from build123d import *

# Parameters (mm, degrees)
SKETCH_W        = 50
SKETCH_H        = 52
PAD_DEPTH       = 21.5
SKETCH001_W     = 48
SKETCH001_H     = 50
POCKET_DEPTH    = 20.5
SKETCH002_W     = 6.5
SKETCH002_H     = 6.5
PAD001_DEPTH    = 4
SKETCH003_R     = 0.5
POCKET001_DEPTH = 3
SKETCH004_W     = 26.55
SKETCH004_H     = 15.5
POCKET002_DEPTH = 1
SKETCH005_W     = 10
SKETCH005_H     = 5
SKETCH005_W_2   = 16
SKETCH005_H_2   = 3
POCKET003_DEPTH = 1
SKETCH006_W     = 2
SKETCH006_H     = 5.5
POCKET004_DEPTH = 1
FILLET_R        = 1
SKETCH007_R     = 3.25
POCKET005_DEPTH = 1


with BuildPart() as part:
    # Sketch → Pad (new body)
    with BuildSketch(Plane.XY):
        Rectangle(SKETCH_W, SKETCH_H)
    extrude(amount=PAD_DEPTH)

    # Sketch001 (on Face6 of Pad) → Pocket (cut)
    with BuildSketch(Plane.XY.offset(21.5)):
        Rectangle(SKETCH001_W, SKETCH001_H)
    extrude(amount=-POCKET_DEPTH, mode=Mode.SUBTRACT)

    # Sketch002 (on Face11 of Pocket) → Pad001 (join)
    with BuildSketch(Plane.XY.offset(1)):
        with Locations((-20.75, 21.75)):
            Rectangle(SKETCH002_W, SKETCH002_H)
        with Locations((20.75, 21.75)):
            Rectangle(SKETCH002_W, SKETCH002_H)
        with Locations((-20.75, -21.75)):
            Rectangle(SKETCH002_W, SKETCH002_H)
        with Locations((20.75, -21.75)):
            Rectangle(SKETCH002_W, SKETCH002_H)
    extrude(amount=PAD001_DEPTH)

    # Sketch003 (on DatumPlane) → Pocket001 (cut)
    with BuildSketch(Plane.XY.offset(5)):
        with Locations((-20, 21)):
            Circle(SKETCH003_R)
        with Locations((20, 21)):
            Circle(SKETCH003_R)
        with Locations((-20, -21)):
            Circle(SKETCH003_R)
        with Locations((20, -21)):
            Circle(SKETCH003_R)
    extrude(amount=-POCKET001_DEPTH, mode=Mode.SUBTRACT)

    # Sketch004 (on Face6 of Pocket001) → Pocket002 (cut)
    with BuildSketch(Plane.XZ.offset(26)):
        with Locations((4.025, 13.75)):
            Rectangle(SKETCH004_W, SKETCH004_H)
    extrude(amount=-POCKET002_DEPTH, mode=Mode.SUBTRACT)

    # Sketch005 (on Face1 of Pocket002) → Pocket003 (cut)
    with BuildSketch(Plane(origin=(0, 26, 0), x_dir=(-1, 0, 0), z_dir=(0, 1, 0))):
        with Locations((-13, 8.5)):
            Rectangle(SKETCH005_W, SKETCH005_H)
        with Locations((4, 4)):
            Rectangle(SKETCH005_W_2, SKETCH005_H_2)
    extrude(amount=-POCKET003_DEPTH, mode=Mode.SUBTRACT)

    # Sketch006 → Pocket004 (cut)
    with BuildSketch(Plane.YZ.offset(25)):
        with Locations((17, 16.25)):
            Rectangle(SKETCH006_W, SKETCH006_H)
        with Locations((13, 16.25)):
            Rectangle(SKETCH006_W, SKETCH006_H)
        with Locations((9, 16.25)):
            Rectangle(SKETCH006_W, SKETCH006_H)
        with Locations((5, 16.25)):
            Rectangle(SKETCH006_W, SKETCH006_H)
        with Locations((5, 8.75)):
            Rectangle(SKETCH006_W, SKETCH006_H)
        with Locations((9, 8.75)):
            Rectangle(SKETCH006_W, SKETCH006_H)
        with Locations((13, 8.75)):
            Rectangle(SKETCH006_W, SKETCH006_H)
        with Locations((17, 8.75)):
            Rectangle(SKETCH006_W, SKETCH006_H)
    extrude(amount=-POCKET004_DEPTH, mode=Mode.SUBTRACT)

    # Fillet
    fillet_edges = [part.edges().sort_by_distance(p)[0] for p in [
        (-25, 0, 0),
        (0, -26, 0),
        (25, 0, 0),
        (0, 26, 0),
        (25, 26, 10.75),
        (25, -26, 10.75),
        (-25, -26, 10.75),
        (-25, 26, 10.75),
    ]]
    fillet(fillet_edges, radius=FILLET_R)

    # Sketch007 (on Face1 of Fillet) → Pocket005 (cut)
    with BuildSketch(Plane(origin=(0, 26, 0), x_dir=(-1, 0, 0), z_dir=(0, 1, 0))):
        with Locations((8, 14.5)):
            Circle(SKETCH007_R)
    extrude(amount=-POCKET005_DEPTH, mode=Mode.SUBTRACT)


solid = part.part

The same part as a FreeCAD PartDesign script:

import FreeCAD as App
import Part
import Sketcher
from FreeCAD import Vector


def edges_at(feature, points):
    """Names of the edges that pass closest to the given points."""
    edges = feature.Shape.Edges
    near = lambda p: min(range(len(edges)), key=lambda i: edges[i].distToShape(Part.Vertex(*p))[0])
    return sorted({f"Edge{near(p) + 1}" for p in points})


def add_polygon(sketch, points):
    """Adds a closed chain of lines whose ends are joined by coincident constraints."""
    first, n = sketch.GeometryCount, len(points)
    for a, b in zip(points, points[1:] + points[:1]):
        sketch.addGeometry(Part.LineSegment(App.Vector(*a, 0), App.Vector(*b, 0)), False)
    for i in range(n):
        sketch.addConstraint(Sketcher.Constraint("Coincident", first + i, 2, first + (i + 1) % n, 1))

doc = App.newDocument("Part")
body = doc.addObject("PartDesign::Body", "Body")

sketch1 = body.newObject("Sketcher::SketchObject", "Sketch")
sketch1.AttachmentSupport = (doc.getObject("XY_Plane"), [""])
sketch1.MapMode = "FlatFace"
add_polygon(sketch1, [(-25, 26), (-25, -26), (25, -26), (25, 26)])
sketch1.addConstraint(Sketcher.Constraint("Vertical", 0))
sketch1.addConstraint(Sketcher.Constraint("Horizontal", 1))
sketch1.addConstraint(Sketcher.Constraint("Vertical", 2))
sketch1.addConstraint(Sketcher.Constraint("Horizontal", 3))
sketch1.addConstraint(Sketcher.Constraint("Symmetric", 0, 2, 2, 2, -1, 1))
sketch1.addConstraint(Sketcher.Constraint("DistanceX", 1, 1, 1, 2, 50.0))
sketch1.addConstraint(Sketcher.Constraint("DistanceY", 0, 2, 0, 1, 52.0))
pad1 = body.newObject("PartDesign::Pad", "Pad")
pad1.Profile = sketch1
pad1.Length = 21.5

sketch2 = body.newObject("Sketcher::SketchObject", "Sketch001")
sketch2.AttachmentSupport = (doc.getObject("XY_Plane"), [""])
sketch2.MapMode = "FlatFace"
sketch2.AttachmentOffset = App.Placement(Vector(0, 0, 21.5), App.Rotation())
add_polygon(sketch2, [(-24, 25), (-24, -25), (24, -25), (24, 25)])
sketch2.addConstraint(Sketcher.Constraint("Vertical", 0))
sketch2.addConstraint(Sketcher.Constraint("Horizontal", 1))
sketch2.addConstraint(Sketcher.Constraint("Vertical", 2))
sketch2.addConstraint(Sketcher.Constraint("Horizontal", 3))
sketch2.addConstraint(Sketcher.Constraint("Symmetric", 0, 2, 2, 2, -1, 1))
sketch2.addConstraint(Sketcher.Constraint("DistanceX", 1, 1, 1, 2, 48.0))
sketch2.addConstraint(Sketcher.Constraint("DistanceY", 0, 2, 0, 1, 50.0))
pocket1 = body.newObject("PartDesign::Pocket", "Pocket")
pocket1.Profile = sketch2
pocket1.Length = 20.5

sketch3 = body.newObject("Sketcher::SketchObject", "Sketch002")
sketch3.AttachmentSupport = (doc.getObject("XY_Plane"), [""])
sketch3.MapMode = "FlatFace"
sketch3.AttachmentOffset = App.Placement(Vector(0, 0, 1), App.Rotation())
add_polygon(sketch3, [(-24, 25), (-24, 18), (-18, 18), (-18, 25)])
add_polygon(sketch3, [(18, 25), (18, 18), (24, 18), (24, 25)])
add_polygon(sketch3, [(-24, -18), (-24, -25), (-18, -25), (-18, -18)])
add_polygon(sketch3, [(18, -18), (18, -25), (24, -25), (24, -18)])
sketch3.addConstraint(Sketcher.Constraint("Vertical", 0))
sketch3.addConstraint(Sketcher.Constraint("Horizontal", 1))
sketch3.addConstraint(Sketcher.Constraint("Vertical", 2))
sketch3.addConstraint(Sketcher.Constraint("Horizontal", 3))
sketch3.addConstraint(Sketcher.Constraint("Vertical", 4))
sketch3.addConstraint(Sketcher.Constraint("Horizontal", 5))
sketch3.addConstraint(Sketcher.Constraint("Vertical", 6))
sketch3.addConstraint(Sketcher.Constraint("Horizontal", 7))
sketch3.addConstraint(Sketcher.Constraint("Vertical", 8))
sketch3.addConstraint(Sketcher.Constraint("Horizontal", 9))
sketch3.addConstraint(Sketcher.Constraint("Vertical", 10))
sketch3.addConstraint(Sketcher.Constraint("Horizontal", 11))
sketch3.addConstraint(Sketcher.Constraint("Vertical", 12))
sketch3.addConstraint(Sketcher.Constraint("Horizontal", 13))
sketch3.addConstraint(Sketcher.Constraint("Vertical", 14))
sketch3.addConstraint(Sketcher.Constraint("Horizontal", 15))
sketch3.addConstraint(Sketcher.Constraint("Symmetric", 6, 2, 8, 2, -1, 1))
sketch3.addConstraint(Sketcher.Constraint("Symmetric", 4, 2, 10, 2, -1, 1))
sketch3.addConstraint(Sketcher.Constraint("Symmetric", 2, 2, 12, 2, -1, 1))
sketch3.addConstraint(Sketcher.Constraint("Symmetric", 0, 2, 14, 2, -1, 1))
sketch3.addConstraint(Sketcher.Constraint("Symmetric", 1, 2, 4, 2, -2))
sketch3.addConstraint(Sketcher.Constraint("Symmetric", 3, 2, 6, 2, -2))
sketch3.addConstraint(Sketcher.Constraint("Equal", 15, 0))
sketch3.addConstraint(Sketcher.Constraint("DistanceX", 1, 1, 1, 2, 6.5))
sketch3.addConstraint(Sketcher.Constraint("DistanceX", 0, 2, -1, 1, 24.0))
sketch3.addConstraint(Sketcher.Constraint("DistanceY", -1, 1, 2, 2, 25.0))
pad2 = body.newObject("PartDesign::Pad", "Pad001")
pad2.Profile = sketch3
pad2.Length = 4

sketch4 = body.newObject("Sketcher::SketchObject", "Sketch003")
sketch4.AttachmentSupport = (doc.getObject("XY_Plane"), [""])
sketch4.MapMode = "FlatFace"
sketch4.AttachmentOffset = App.Placement(Vector(0, 0, 5), App.Rotation())
sketch4.addGeometry(Part.Circle(Vector(-20, 21, 0), Vector(0, 0, 1), 0.5), False)
sketch4.addGeometry(Part.Circle(Vector(20, 21, 0), Vector(0, 0, 1), 0.5), False)
sketch4.addGeometry(Part.Circle(Vector(-20, -21, 0), Vector(0, 0, 1), 0.5), False)
sketch4.addGeometry(Part.Circle(Vector(20, -21, 0), Vector(0, 0, 1), 0.5), False)
sketch4.addConstraint(Sketcher.Constraint("Equal", 0, 1))
sketch4.addConstraint(Sketcher.Constraint("Equal", 1, 2))
sketch4.addConstraint(Sketcher.Constraint("Equal", 2, 3))
sketch4.addConstraint(Sketcher.Constraint("Symmetric", 1, 3, 2, 3, -1, 1))
sketch4.addConstraint(Sketcher.Constraint("Symmetric", 0, 3, 3, 3, -1, 1))
sketch4.addConstraint(Sketcher.Constraint("Symmetric", 0, 3, 1, 3, -2))
sketch4.addConstraint(Sketcher.Constraint("Diameter", 0, 1.0))
sketch4.addConstraint(Sketcher.Constraint("DistanceX", 0, 3, -1, 1, 20.0))
sketch4.addConstraint(Sketcher.Constraint("DistanceY", -1, 1, 0, 3, 21.0))
pocket2 = body.newObject("PartDesign::Pocket", "Pocket001")
pocket2.Profile = sketch4
pocket2.Length = 3

sketch5 = body.newObject("Sketcher::SketchObject", "Sketch004")
sketch5.AttachmentSupport = (doc.getObject("XZ_Plane"), [""])
sketch5.MapMode = "FlatFace"
sketch5.AttachmentOffset = App.Placement(Vector(0, 0, 26), App.Rotation())
add_polygon(sketch5, [(-9, 22), (-9, 6), (17, 6), (17, 22)])
sketch5.addConstraint(Sketcher.Constraint("Vertical", 0))
sketch5.addConstraint(Sketcher.Constraint("Horizontal", 1))
sketch5.addConstraint(Sketcher.Constraint("Vertical", 2))
sketch5.addConstraint(Sketcher.Constraint("Horizontal", 3))
sketch5.addConstraint(Sketcher.Constraint("DistanceY", 0, 2, 0, 1, 15.5))
sketch5.addConstraint(Sketcher.Constraint("DistanceY", -1, 1, 0, 2, 6.0))
sketch5.addConstraint(Sketcher.Constraint("DistanceX", 1, 1, 1, 2, 26.55))
sketch5.addConstraint(Sketcher.Constraint("DistanceX", -1, 1, 1, 2, 17.3))
pocket3 = body.newObject("PartDesign::Pocket", "Pocket002")
pocket3.Profile = sketch5
pocket3.Length = 1

sketch6 = body.newObject("Sketcher::SketchObject", "Sketch005")
sketch6.AttachmentSupport = (doc.getObject("XZ_Plane"), [""])
sketch6.MapMode = "FlatFace"
sketch6.AttachmentOffset = App.Placement(Vector(0, 0, -26), App.Rotation())
add_polygon(sketch6, [(18, 11), (18, 6), (8, 6), (8, 11)])
add_polygon(sketch6, [(4, 5.5), (4, 2.5), (-12, 2.5), (-12, 5.5)])
sketch6.addConstraint(Sketcher.Constraint("Vertical", 0))
sketch6.addConstraint(Sketcher.Constraint("Horizontal", 1))
sketch6.addConstraint(Sketcher.Constraint("Vertical", 2))
sketch6.addConstraint(Sketcher.Constraint("Horizontal", 3))
sketch6.addConstraint(Sketcher.Constraint("Vertical", 4))
sketch6.addConstraint(Sketcher.Constraint("Horizontal", 5))
sketch6.addConstraint(Sketcher.Constraint("Vertical", 6))
sketch6.addConstraint(Sketcher.Constraint("Horizontal", 7))
sketch6.addConstraint(Sketcher.Constraint("DistanceX", 1, 2, 1, 1, 10.0))
sketch6.addConstraint(Sketcher.Constraint("DistanceX", 5, 2, 5, 1, 16.0))
sketch6.addConstraint(Sketcher.Constraint("DistanceY", 0, 2, 0, 1, 5.0))
sketch6.addConstraint(Sketcher.Constraint("DistanceY", 4, 2, 4, 1, 3.0))
sketch6.addConstraint(Sketcher.Constraint("DistanceX", -1, 1, 0, 2, 18.0))
sketch6.addConstraint(Sketcher.Constraint("DistanceY", -1, 1, 0, 2, 6.0))
sketch6.addConstraint(Sketcher.Constraint("DistanceX", -1, 1, 4, 2, 4.0))
sketch6.addConstraint(Sketcher.Constraint("DistanceY", -1, 1, 4, 2, 2.5))
pocket4 = body.newObject("PartDesign::Pocket", "Pocket003")
pocket4.Profile = sketch6
pocket4.Length = 1
pocket4.Reversed = True

sketch7 = body.newObject("Sketcher::SketchObject", "Sketch006")
sketch7.AttachmentSupport = (doc.getObject("YZ_Plane"), [""])
sketch7.MapMode = "FlatFace"
sketch7.AttachmentOffset = App.Placement(Vector(0, 0, 25), App.Rotation())
add_polygon(sketch7, [(16, 19), (16, 13.5), (18, 13.5), (18, 19)])
add_polygon(sketch7, [(12, 19), (12, 13.5), (14, 13.5), (14, 19)])
add_polygon(sketch7, [(8, 19), (8, 13.5), (10, 13.5), (10, 19)])
add_polygon(sketch7, [(4, 19), (4, 13.5), (6, 13.5), (6, 19)])
add_polygon(sketch7, [(4, 11.5), (4, 6), (6, 6), (6, 11.5)])
add_polygon(sketch7, [(8, 11.5), (8, 6), (10, 6), (10, 11.5)])
add_polygon(sketch7, [(12, 11.5), (12, 6), (14, 6), (14, 11.5)])
add_polygon(sketch7, [(16, 11.5), (16, 6), (18, 6), (18, 11.5)])
sketch7.addConstraint(Sketcher.Constraint("Vertical", 0))
sketch7.addConstraint(Sketcher.Constraint("Horizontal", 1))
sketch7.addConstraint(Sketcher.Constraint("Vertical", 2))
sketch7.addConstraint(Sketcher.Constraint("Horizontal", 3))
sketch7.addConstraint(Sketcher.Constraint("Vertical", 4))
sketch7.addConstraint(Sketcher.Constraint("Horizontal", 5))
sketch7.addConstraint(Sketcher.Constraint("Vertical", 6))
sketch7.addConstraint(Sketcher.Constraint("Horizontal", 7))
sketch7.addConstraint(Sketcher.Constraint("Vertical", 8))
sketch7.addConstraint(Sketcher.Constraint("Horizontal", 9))
sketch7.addConstraint(Sketcher.Constraint("Vertical", 10))
sketch7.addConstraint(Sketcher.Constraint("Horizontal", 11))
sketch7.addConstraint(Sketcher.Constraint("Vertical", 12))
sketch7.addConstraint(Sketcher.Constraint("Horizontal", 13))
sketch7.addConstraint(Sketcher.Constraint("Vertical", 14))
sketch7.addConstraint(Sketcher.Constraint("Horizontal", 15))
sketch7.addConstraint(Sketcher.Constraint("Vertical", 16))
sketch7.addConstraint(Sketcher.Constraint("Horizontal", 17))
sketch7.addConstraint(Sketcher.Constraint("Vertical", 18))
sketch7.addConstraint(Sketcher.Constraint("Horizontal", 19))
sketch7.addConstraint(Sketcher.Constraint("Vertical", 20))
sketch7.addConstraint(Sketcher.Constraint("Horizontal", 21))
sketch7.addConstraint(Sketcher.Constraint("Vertical", 22))
sketch7.addConstraint(Sketcher.Constraint("Horizontal", 23))
sketch7.addConstraint(Sketcher.Constraint("Vertical", 24))
sketch7.addConstraint(Sketcher.Constraint("Horizontal", 25))
sketch7.addConstraint(Sketcher.Constraint("Vertical", 26))
sketch7.addConstraint(Sketcher.Constraint("Horizontal", 27))
sketch7.addConstraint(Sketcher.Constraint("Vertical", 28))
sketch7.addConstraint(Sketcher.Constraint("Horizontal", 29))
sketch7.addConstraint(Sketcher.Constraint("Vertical", 30))
sketch7.addConstraint(Sketcher.Constraint("Horizontal", 31))
sketch7.addConstraint(Sketcher.Constraint("Horizontal", 1, 2, 4, 2))
sketch7.addConstraint(Sketcher.Constraint("Horizontal", 3, 2, 6, 2))
sketch7.addConstraint(Sketcher.Constraint("Horizontal", 5, 2, 8, 2))
sketch7.addConstraint(Sketcher.Constraint("Horizontal", 7, 2, 10, 2))
sketch7.addConstraint(Sketcher.Constraint("Horizontal", 9, 2, 12, 2))
sketch7.addConstraint(Sketcher.Constraint("Horizontal", 11, 2, 14, 2))
sketch7.addConstraint(Sketcher.Constraint("Horizontal", 17, 2, 20, 2))
sketch7.addConstraint(Sketcher.Constraint("Horizontal", 19, 2, 22, 2))
sketch7.addConstraint(Sketcher.Constraint("Horizontal", 21, 2, 24, 2))
sketch7.addConstraint(Sketcher.Constraint("Horizontal", 23, 2, 26, 2))
sketch7.addConstraint(Sketcher.Constraint("Horizontal", 25, 2, 28, 2))
sketch7.addConstraint(Sketcher.Constraint("Horizontal", 27, 2, 30, 2))
sketch7.addConstraint(Sketcher.Constraint("Vertical", 15, 2, 16, 2))
sketch7.addConstraint(Sketcher.Constraint("Vertical", 14, 2, 17, 2))
sketch7.addConstraint(Sketcher.Constraint("Vertical", 11, 2, 20, 2))
sketch7.addConstraint(Sketcher.Constraint("Vertical", 10, 2, 21, 2))
sketch7.addConstraint(Sketcher.Constraint("Vertical", 7, 2, 24, 2))
sketch7.addConstraint(Sketcher.Constraint("Vertical", 6, 2, 25, 2))
sketch7.addConstraint(Sketcher.Constraint("Vertical", 3, 2, 28, 2))
sketch7.addConstraint(Sketcher.Constraint("Vertical", 2, 2, 29, 2))
sketch7.addConstraint(Sketcher.Constraint("Equal", 3, 5))
sketch7.addConstraint(Sketcher.Constraint("Equal", 7, 9))
sketch7.addConstraint(Sketcher.Constraint("Equal", 11, 13))
sketch7.addConstraint(Sketcher.Constraint("Equal", 14, 16))
sketch7.addConstraint(Sketcher.Constraint("DistanceX", 1, 1, 1, 2, 2.0))
sketch7.addConstraint(Sketcher.Constraint("DistanceY", 0, 2, 0, 1, 5.5))
sketch7.addConstraint(Sketcher.Constraint("DistanceX", -1, 1, 0, 2, 16.0))
sketch7.addConstraint(Sketcher.Constraint("DistanceY", -1, 1, 2, 2, 19.0))
sketch7.addConstraint(Sketcher.Constraint("DistanceX", -1, 1, 4, 2, 12.0))
sketch7.addConstraint(Sketcher.Constraint("DistanceX", -1, 1, 8, 2, 8.0))
sketch7.addConstraint(Sketcher.Constraint("DistanceX", -1, 1, 12, 2, 4.0))
sketch7.addConstraint(Sketcher.Constraint("DistanceY", -1, 1, 16, 2, 6.0))
pocket5 = body.newObject("PartDesign::Pocket", "Pocket004")
pocket5.Profile = sketch7
pocket5.Length = 1
doc.recompute()

fillet = body.newObject("PartDesign::Fillet", "Fillet")
fillet.Base = (pocket5, edges_at(pocket5, [
    (-25, 0, 0),
    (0, -26, 0),
    (25, 0, 0),
    (0, 26, 0),
    (25, 26, 10.75),
    (25, -26, 10.75),
    (-25, -26, 10.75),
    (-25, 26, 10.75),
]))
fillet.Radius = 1

sketch8 = body.newObject("Sketcher::SketchObject", "Sketch007")
sketch8.AttachmentSupport = (doc.getObject("XZ_Plane"), [""])
sketch8.MapMode = "FlatFace"
sketch8.AttachmentOffset = App.Placement(Vector(0, 0, -26), App.Rotation())
sketch8.addGeometry(Part.Circle(Vector(-8, 14.5, 0), Vector(0, 0, 1), 3.2), False)
sketch8.addConstraint(Sketcher.Constraint("Diameter", 0, 6.5))
sketch8.addConstraint(Sketcher.Constraint("DistanceX", 0, 3, -1, 1, 8.0))
sketch8.addConstraint(Sketcher.Constraint("DistanceY", -1, 1, 0, 3, 14.5))
pocket6 = body.newObject("PartDesign::Pocket", "Pocket005")
pocket6.Profile = sketch8
pocket6.Length = 1
pocket6.Reversed = True

doc.recompute()
